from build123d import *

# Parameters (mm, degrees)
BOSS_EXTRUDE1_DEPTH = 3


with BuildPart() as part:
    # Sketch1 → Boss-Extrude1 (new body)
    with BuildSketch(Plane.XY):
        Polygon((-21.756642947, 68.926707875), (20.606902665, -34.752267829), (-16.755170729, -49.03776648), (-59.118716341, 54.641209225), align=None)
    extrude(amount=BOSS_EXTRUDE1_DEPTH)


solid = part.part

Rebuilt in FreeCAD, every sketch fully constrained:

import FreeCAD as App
import Part
import Sketcher


def add_polygon(sketch, points):
    """Adds a closed chain of lines whose ends are joined by coincident constraints."""
    first, n = sketch.GeometryCount, len(points)
    for a, b in zip(points, points[1:] + points[:1]):
        sketch.addGeometry(Part.LineSegment(App.Vector(*a, 0), App.Vector(*b, 0)), False)
    for i in range(n):
        sketch.addConstraint(Sketcher.Constraint("Coincident", first + i, 2, first + (i + 1) % n, 1))

doc = App.newDocument("Part")
body = doc.addObject("PartDesign::Body", "Body")

sketch1 = body.newObject("Sketcher::SketchObject", "Sketch")
sketch1.AttachmentSupport = (doc.getObject("XY_Plane"), [""])
sketch1.MapMode = "FlatFace"
add_polygon(sketch1, [(20.606903, -34.752268), (-21.756643, 68.926708), (-59.118716, 54.641209), (-16.755171, -49.037766)])
sketch1.addConstraint(Sketcher.Constraint("Parallel", 0, 2))
sketch1.addConstraint(Sketcher.Constraint("Parallel", 1, 3))
sketch1.addConstraint(Sketcher.Constraint("Distance", 0, 112.0))
sketch1.addConstraint(Sketcher.Constraint("Distance", 1, 40.0))
sketch1.addConstraint(Sketcher.Constraint("DistanceY", 1, 2, 0, 2, 14.285499))
sketch1.addConstraint(Sketcher.Constraint("DistanceY", -1, 1, 1, 2, 54.641209))
sketch1.addConstraint(Sketcher.Constraint("DistanceX", 2, 2, -1, 1, 16.755171))
sketch1.addConstraint(Sketcher.Constraint("DistanceX", 1, 2, 3, 2, 79.725619))
pad1 = body.newObject("PartDesign::Pad", "Pad")
pad1.Profile = sketch1
pad1.Length = 3

doc.recompute()
